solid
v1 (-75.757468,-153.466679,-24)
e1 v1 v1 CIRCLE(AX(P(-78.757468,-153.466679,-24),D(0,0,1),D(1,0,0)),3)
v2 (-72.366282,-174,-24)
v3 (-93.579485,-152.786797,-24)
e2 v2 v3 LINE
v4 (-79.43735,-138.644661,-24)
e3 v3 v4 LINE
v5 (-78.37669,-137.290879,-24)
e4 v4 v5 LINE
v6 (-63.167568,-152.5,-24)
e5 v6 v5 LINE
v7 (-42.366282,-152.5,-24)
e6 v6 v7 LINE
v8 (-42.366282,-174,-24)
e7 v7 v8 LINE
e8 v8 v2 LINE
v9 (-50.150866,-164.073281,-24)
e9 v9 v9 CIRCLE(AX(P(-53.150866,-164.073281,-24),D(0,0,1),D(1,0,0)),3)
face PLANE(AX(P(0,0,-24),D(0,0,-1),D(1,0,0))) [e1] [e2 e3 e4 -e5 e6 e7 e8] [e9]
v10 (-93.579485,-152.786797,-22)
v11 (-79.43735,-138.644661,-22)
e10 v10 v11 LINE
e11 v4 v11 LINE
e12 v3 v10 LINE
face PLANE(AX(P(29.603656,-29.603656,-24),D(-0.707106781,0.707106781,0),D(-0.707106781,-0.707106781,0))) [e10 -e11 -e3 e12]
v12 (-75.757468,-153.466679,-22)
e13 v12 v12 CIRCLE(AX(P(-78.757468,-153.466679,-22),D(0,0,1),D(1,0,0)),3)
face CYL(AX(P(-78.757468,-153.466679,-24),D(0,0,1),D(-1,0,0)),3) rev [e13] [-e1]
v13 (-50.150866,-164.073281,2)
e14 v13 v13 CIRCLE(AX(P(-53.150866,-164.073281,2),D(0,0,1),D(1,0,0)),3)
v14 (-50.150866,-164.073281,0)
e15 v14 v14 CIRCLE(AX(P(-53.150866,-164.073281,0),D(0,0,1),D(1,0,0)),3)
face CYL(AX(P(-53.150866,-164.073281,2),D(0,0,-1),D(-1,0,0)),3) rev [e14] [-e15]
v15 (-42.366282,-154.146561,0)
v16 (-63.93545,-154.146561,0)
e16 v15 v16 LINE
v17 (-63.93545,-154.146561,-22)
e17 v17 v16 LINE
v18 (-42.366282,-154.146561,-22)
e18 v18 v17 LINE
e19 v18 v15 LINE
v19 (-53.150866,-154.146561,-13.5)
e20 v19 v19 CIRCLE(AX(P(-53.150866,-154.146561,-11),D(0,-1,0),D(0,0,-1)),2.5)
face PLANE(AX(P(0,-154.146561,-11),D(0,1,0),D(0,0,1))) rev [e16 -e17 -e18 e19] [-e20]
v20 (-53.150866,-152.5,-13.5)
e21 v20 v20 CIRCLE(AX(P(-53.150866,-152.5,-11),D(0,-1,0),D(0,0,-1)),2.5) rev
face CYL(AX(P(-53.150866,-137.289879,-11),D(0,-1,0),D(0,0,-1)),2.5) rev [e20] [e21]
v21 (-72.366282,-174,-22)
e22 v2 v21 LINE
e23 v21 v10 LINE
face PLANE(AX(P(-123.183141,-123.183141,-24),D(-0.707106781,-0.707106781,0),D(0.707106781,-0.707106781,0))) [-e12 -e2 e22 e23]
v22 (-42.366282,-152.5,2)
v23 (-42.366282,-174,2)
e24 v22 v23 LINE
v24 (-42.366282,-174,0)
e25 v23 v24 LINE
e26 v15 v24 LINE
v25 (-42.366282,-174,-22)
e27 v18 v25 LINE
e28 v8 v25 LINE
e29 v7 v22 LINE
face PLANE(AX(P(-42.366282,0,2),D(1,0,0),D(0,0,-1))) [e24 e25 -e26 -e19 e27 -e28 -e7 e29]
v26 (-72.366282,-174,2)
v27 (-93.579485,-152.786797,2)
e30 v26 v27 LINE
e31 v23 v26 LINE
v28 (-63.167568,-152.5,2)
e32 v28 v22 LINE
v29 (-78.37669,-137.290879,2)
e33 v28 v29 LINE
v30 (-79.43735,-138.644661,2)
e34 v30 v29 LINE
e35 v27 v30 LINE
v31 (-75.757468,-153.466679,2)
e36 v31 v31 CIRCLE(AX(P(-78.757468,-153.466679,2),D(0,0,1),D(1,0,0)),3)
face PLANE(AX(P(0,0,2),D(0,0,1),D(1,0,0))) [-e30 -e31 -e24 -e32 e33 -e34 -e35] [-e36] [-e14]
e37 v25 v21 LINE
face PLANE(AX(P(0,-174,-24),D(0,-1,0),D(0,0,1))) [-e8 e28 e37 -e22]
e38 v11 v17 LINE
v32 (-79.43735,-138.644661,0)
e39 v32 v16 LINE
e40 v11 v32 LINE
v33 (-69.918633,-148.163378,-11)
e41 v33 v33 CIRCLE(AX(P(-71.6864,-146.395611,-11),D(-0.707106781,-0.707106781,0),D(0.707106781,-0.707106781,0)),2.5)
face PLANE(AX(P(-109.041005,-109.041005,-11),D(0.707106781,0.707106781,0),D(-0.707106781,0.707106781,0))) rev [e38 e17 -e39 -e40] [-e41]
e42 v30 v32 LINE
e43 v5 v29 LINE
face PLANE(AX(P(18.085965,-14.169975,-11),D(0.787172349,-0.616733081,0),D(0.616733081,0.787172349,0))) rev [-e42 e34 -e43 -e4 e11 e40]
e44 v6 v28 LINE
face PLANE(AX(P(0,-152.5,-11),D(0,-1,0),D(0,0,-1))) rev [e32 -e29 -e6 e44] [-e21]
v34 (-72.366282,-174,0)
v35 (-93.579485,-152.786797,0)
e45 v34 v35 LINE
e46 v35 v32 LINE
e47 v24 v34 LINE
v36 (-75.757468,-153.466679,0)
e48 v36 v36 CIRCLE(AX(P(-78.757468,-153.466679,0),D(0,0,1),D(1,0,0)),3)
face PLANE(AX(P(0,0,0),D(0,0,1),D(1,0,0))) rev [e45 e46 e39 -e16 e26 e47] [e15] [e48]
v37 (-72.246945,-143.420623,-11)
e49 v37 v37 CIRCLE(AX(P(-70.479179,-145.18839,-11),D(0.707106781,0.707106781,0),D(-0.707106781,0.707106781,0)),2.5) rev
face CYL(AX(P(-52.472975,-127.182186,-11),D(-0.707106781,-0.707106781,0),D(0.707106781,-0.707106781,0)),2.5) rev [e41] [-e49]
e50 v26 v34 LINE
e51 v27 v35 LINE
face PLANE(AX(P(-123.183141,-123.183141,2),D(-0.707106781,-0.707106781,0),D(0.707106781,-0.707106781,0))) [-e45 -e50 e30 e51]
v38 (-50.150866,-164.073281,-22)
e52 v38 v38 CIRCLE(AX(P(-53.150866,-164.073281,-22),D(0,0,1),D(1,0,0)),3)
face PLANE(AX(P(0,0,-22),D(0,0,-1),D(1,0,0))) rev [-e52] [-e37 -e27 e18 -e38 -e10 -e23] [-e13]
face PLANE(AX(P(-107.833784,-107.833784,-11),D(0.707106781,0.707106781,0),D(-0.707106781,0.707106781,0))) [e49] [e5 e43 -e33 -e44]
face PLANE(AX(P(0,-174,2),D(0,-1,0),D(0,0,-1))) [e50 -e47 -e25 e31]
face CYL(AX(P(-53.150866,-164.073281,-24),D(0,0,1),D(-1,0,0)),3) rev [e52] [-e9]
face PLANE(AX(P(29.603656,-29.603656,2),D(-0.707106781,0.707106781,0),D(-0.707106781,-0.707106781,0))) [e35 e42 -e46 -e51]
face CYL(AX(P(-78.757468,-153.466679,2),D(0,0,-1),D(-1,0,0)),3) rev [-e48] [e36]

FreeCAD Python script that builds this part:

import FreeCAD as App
import Part
import Sketcher
Q = App.Units.Quantity

doc = App.newDocument("Part")
body = doc.addObject("PartDesign::Body", "Body")

sketch1 = body.newObject("Sketcher::SketchObject", "Sketch")
sketch1.AttachmentSupport = (doc.getObject("XY_Plane"), [""])
sketch1.MapMode = "FlatFace"
sketch1.addGeometry([
    Part.LineSegment(App.Vector(-42.366282, -174, 0), App.Vector(-42.366282, -154.146561, 0)),
    Part.LineSegment(App.Vector(-42.366282, -154.146561, 0), App.Vector(-63.93545, -154.146561, 0)),
    Part.LineSegment(App.Vector(-63.93545, -154.146561, 0), App.Vector(-79.43735, -138.644661, 0)),
    Part.LineSegment(App.Vector(-79.43735, -138.644661, 0), App.Vector(-93.579485, -152.786797, 0)),
    Part.LineSegment(App.Vector(-93.579485, -152.786797, 0), App.Vector(-72.366282, -174, 0)),
    Part.LineSegment(App.Vector(-72.366282, -174, 0), App.Vector(-42.366282, -174, 0)),
    Part.Circle(App.Vector(-53.150866, -164.073281, 0), App.Vector(0, 0, 1), 3),
    Part.Circle(App.Vector(-78.757468, -153.466679, 0), App.Vector(0, 0, 1), 3),
], False)
sketch1.addConstraint([
    Sketcher.Constraint("Coincident", 0, 2, 1, 1),
    Sketcher.Constraint("Coincident", 1, 2, 2, 1),
    Sketcher.Constraint("Coincident", 2, 2, 3, 1),
    Sketcher.Constraint("Coincident", 3, 2, 4, 1),
    Sketcher.Constraint("Coincident", 4, 2, 5, 1),
    Sketcher.Constraint("Coincident", 5, 2, 0, 1),
    Sketcher.Constraint("Vertical", 0),
    Sketcher.Constraint("Horizontal", 1),
    Sketcher.Constraint("Horizontal", 5),
    Sketcher.Constraint("Equal", 6, 7),
    Sketcher.Constraint("Perpendicular", 2, 3),
    Sketcher.Constraint("Perpendicular", 3, 4),
    Sketcher.Constraint("Diameter", 6, 6.0),
    Sketcher.Constraint("DistanceX", 5, 1, 5, 2, 30.0),
    Sketcher.Constraint("Angle", 2, Q("135 deg")),
    Sketcher.Constraint("Distance", 3, 20.0),
    Sketcher.Constraint("Distance", 4, 30.0),
    Sketcher.Constraint("DistanceY", 4, 2, -1, 1, 174.0),
    Sketcher.Constraint("DistanceY", 0, 1, 0, 2, 19.853439),
    Sketcher.Constraint("DistanceX", 7, 3, 6, 3, 25.606602),
    Sketcher.Constraint("DistanceY", 6, 3, 7, 3, 10.606602),
    Sketcher.Constraint("DistanceY", 6, 3, -1, 1, 164.073281),
    Sketcher.Constraint("DistanceX", 1, 2, -1, 1, 63.93545),
    Sketcher.Constraint("DistanceX", 3, 2, 6, 3, 40.42862),
])
pad1 = body.newObject("PartDesign::Pad", "Pad")
pad1.Profile = sketch1
pad1.Length = 2

sketch2 = body.newObject("Sketcher::SketchObject", "Sketch001")
sketch2.AttachmentSupport = (doc.getObject("XY_Plane"), [""])
sketch2.MapMode = "FlatFace"
sketch2.AttachmentOffset = App.Placement(App.Vector(0, 0, 2), App.Rotation())
sketch2.addGeometry([
    Part.LineSegment(App.Vector(-78.37669, -137.290879, 0), App.Vector(-79.43735, -138.644661, 0)),
    Part.LineSegment(App.Vector(-79.43735, -138.644661, 0), App.Vector(-63.93545, -154.146561, 0)),
    Part.LineSegment(App.Vector(-63.93545, -154.146561, 0), App.Vector(-42.366282, -154.146561, 0)),
    Part.LineSegment(App.Vector(-42.366282, -154.146561, 0), App.Vector(-42.366282, -152.5, 0)),
    Part.LineSegment(App.Vector(-42.366282, -152.5, 0), App.Vector(-63.167568, -152.5, 0)),
    Part.LineSegment(App.Vector(-63.167568, -152.5, 0), App.Vector(-78.37669, -137.290879, 0)),
], False)
sketch2.addConstraint([
    Sketcher.Constraint("Coincident", 0, 2, 1, 1),
    Sketcher.Constraint("Coincident", 1, 2, 2, 1),
    Sketcher.Constraint("Coincident", 2, 2, 3, 1),
    Sketcher.Constraint("Coincident", 3, 2, 4, 1),
    Sketcher.Constraint("Coincident", 4, 2, 5, 1),
    Sketcher.Constraint("Coincident", 5, 2, 0, 1),
    Sketcher.Constraint("Horizontal", 2),
    Sketcher.Constraint("Vertical", 3),
    Sketcher.Constraint("Horizontal", 4),
    Sketcher.Constraint("Parallel", 1, 5),
    Sketcher.Constraint("Angle", 1, Q("-45 deg")),
    Sketcher.Constraint("DistanceY", 3, 2, -1, 1, 152.5),
    Sketcher.Constraint("DistanceY", 3, 1, 3, 2, 1.646561),
    Sketcher.Constraint("DistanceX", 0, 2, 1, 2, 15.5019),
    Sketcher.Constraint("DistanceX", 2, 1, 2, 2, 21.569168),
    Sketcher.Constraint("DistanceX", 4, 2, 4, 1, 20.801286),
    Sketcher.Constraint("DistanceX", 0, 2, -1, 1, 79.43735),
    Sketcher.Constraint("DistanceX", 5, 2, -1, 1, 78.37669),
])
pad2 = body.newObject("PartDesign::Pad", "Pad001")
pad2.Profile = sketch2
pad2.Length = 13
pad2.Reversed = True
doc.recompute()

datumplane = body.newObject("PartDesign::Plane", "DatumPlane")
datumplane.AttachmentSupport = (doc.getObject("XY_Plane"), [""])
datumplane.MapMode = "FlatFace"
datumplane.AttachmentOffset = App.Placement(App.Vector(0, 0, -11), App.Rotation())
mirrored = body.newObject("PartDesign::Mirrored", "Mirrored")
mirrored.Originals = [pad1, pad2]
mirrored.MirrorPlane = (datumplane, [""])
body.Tip = mirrored

sketch3 = body.newObject("Sketcher::SketchObject", "Sketch002")
sketch3.AttachmentSupport = (doc.getObject("XZ_Plane"), [""])
sketch3.MapMode = "FlatFace"
sketch3.AttachmentOffset = App.Placement(App.Vector(0, 0, 154.146561), App.Rotation())
sketch3.addGeometry(Part.Circle(App.Vector(-53.150866, -11, 0), App.Vector(0, 0, 1), 2.5), False)
sketch3.addConstraint([
    Sketcher.Constraint("Diameter", 0, 5.0),
    Sketcher.Constraint("DistanceY", 0, 3, -1, 1, 11.0),
    Sketcher.Constraint("DistanceX", 0, 3, -1, 1, 53.150866),
])
pocket1 = body.newObject("PartDesign::Pocket", "Pocket")
pocket1.Profile = sketch3
pocket1.Type = "UpToFirst"

sketch4 = body.newObject("Sketcher::SketchObject", "Sketch003")
sketch4.Placement = App.Placement(App.Vector(-109.041005, -109.041005, 0), App.Rotation(App.Vector(-0.707106781, 0.707106781, 0), App.Vector(0, 0, -0.999999999), App.Vector(-0.707106781, -0.707106781, 0), "ZXY"))
sketch4.addGeometry(Part.Circle(App.Vector(-52.82739, 11, 0), App.Vector(0, 0, 1), 2.5), False)
sketch4.addConstraint([
    Sketcher.Constraint("Diameter", 0, 5.0),
    Sketcher.Constraint("DistanceY", -1, 1, 0, 3, 11.0),
    Sketcher.Constraint("DistanceX", 0, 3, -1, 1, 52.82739),
])
pocket2 = body.newObject("PartDesign::Pocket", "Pocket001")
pocket2.Profile = sketch4
pocket2.Type = "UpToFirst"

doc.recompute()
